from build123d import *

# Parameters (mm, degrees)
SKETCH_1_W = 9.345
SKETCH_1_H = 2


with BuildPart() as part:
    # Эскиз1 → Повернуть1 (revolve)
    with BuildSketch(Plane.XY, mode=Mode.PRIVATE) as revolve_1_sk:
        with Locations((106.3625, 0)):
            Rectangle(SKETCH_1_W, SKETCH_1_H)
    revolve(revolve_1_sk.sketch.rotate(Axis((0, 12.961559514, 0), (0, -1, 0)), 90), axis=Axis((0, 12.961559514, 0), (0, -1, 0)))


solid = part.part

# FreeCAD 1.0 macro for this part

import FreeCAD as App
import Part
import Sketcher

V = App.Vector

doc = App.newDocument("Part")
body = doc.addObject("PartDesign::Body", "Body")

# Sketch on XY plane
sketch1 = body.newObject("Sketcher::SketchObject", "Sketch")
sketch1.AttachmentSupport = (doc.getObject("XY_Plane"), [""])
sketch1.MapMode = "FlatFace"
sketch1.addGeometry(Part.LineSegment(V(101.69, 1, 0), V(101.69, -1, 0)), False)
sketch1.addGeometry(Part.LineSegment(V(101.69, -1, 0), V(111.035, -1, 0)), False)
sketch1.addGeometry(Part.LineSegment(V(111.035, -1, 0), V(111.035, 1, 0)), False)
sketch1.addGeometry(Part.LineSegment(V(111.035, 1, 0), V(101.69, 1, 0)), False)
sketch1.addConstraint(Sketcher.Constraint("Coincident", 0, 2, 1, 1))
sketch1.addConstraint(Sketcher.Constraint("Coincident", 1, 2, 2, 1))
sketch1.addConstraint(Sketcher.Constraint("Coincident", 2, 2, 3, 1))
sketch1.addConstraint(Sketcher.Constraint("Coincident", 3, 2, 0, 1))
sketch1.addConstraint(Sketcher.Constraint("Vertical", 0))
sketch1.addConstraint(Sketcher.Constraint("Horizontal", 1))
sketch1.addConstraint(Sketcher.Constraint("Vertical", 2))
sketch1.addConstraint(Sketcher.Constraint("Horizontal", 3))
sketch1.addConstraint(Sketcher.Constraint("DistanceY", 0, 2, 0, 1, 2.0))
sketch1.addConstraint(Sketcher.Constraint("DistanceY", 0, 2, -1, 1, 1.0))
sketch1.addConstraint(Sketcher.Constraint("DistanceX", 1, 1, 1, 2, 9.345))
sketch1.addConstraint(Sketcher.Constraint("DistanceX", -1, 1, 0, 2, 101.69))
revolution = body.newObject("PartDesign::Revolution", "Revolution")
revolution.Profile = sketch1
revolution.ReferenceAxis = (sketch1, ["V_Axis"])
revolution.Angle = 360

doc.recompute()
